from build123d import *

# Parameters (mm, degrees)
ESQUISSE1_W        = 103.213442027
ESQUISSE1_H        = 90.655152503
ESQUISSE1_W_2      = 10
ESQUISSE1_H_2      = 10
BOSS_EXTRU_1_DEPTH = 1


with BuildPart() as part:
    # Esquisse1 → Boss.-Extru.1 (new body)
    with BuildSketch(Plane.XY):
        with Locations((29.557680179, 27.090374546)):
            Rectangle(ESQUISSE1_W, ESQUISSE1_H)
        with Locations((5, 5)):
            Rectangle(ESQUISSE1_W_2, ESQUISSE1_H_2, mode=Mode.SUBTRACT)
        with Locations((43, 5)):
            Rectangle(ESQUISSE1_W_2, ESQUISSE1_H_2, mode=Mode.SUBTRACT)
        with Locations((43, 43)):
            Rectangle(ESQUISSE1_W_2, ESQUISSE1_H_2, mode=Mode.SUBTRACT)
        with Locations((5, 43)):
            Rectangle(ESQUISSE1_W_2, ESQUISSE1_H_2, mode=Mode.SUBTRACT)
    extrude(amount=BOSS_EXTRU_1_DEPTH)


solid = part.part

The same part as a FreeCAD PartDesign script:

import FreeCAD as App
import Part
import Sketcher
from FreeCAD import Vector


def add_polygon(sketch, points):
    """Adds a closed chain of lines whose ends are joined by coincident constraints."""
    first, n = sketch.GeometryCount, len(points)
    for a, b in zip(points, points[1:] + points[:1]):
        sketch.addGeometry(Part.LineSegment(App.Vector(*a, 0), App.Vector(*b, 0)), False)
    for i in range(n):
        sketch.addConstraint(Sketcher.Constraint("Coincident", first + i, 2, first + (i + 1) % n, 1))

doc = App.newDocument("Part")
params = doc.addObject("Spreadsheet::Sheet", "Params")
for row, (alias, value) in enumerate([
    ("sketch1_width", "10 mm"),
    ("pad1_length", "1 mm"),
], start=1):
    params.set(f"A{row}", alias)
    params.set(f"B{row}", "=" + value)
    params.setAlias(f"B{row}", alias)

body = doc.addObject("PartDesign::Body", "Body")

# Sketch on XY plane
sketch1 = doc.addObject("Sketcher::SketchObject", "Sketch")
body.addObject(sketch1)
sketch1.AttachmentSupport = (doc.XY_Plane, [""])
sketch1.MapMode = "FlatFace"
add_polygon(sketch1, [(-22.049041, 72.417951), (-22.049041, -18.237202), (81.164401, -18.237202), (81.164401, 72.417951)])  # lines 0-3
add_polygon(sketch1, [(10, 0), (0, 0), (0, 10), (10, 10)])  # lines 4-7
add_polygon(sketch1, [(48, 0), (38, 0), (38, 10), (48, 10)])  # lines 8-11
add_polygon(sketch1, [(10, 38), (0, 38), (0, 48), (10, 48)])  # lines 12-15
add_polygon(sketch1, [(48, 38), (38, 38), (38, 48), (48, 48)])  # lines 16-19
sketch1.addConstraint([
    Sketcher.Constraint("Vertical", 0),
    Sketcher.Constraint("Horizontal", 1),
    Sketcher.Constraint("Vertical", 2),
    Sketcher.Constraint("Horizontal", 3),
    Sketcher.Constraint("Horizontal", 4),
    Sketcher.Constraint("Vertical", 5),
    Sketcher.Constraint("Horizontal", 6),
    Sketcher.Constraint("Vertical", 7),
    Sketcher.Constraint("Horizontal", 8),
    Sketcher.Constraint("Vertical", 9),
    Sketcher.Constraint("Horizontal", 10),
    Sketcher.Constraint("Vertical", 11),
    Sketcher.Constraint("Horizontal", 12),
    Sketcher.Constraint("Vertical", 13),
    Sketcher.Constraint("Horizontal", 14),
    Sketcher.Constraint("Vertical", 15),
    Sketcher.Constraint("Horizontal", 16),
    Sketcher.Constraint("Vertical", 17),
    Sketcher.Constraint("Horizontal", 18),
    Sketcher.Constraint("Vertical", 19),
    Sketcher.Constraint("Coincident", 4, 2, -1, 1),
    Sketcher.Constraint("PointOnObject", 8, 2, -1),
    Sketcher.Constraint("PointOnObject", 12, 2, -2),
    Sketcher.Constraint("Horizontal", 6, 2, 9, 2),
    Sketcher.Constraint("Horizontal", 15, 2, 16, 2),
    Sketcher.Constraint("Horizontal", 14, 2, 17, 2),
    Sketcher.Constraint("Vertical", 7, 2, 14, 2),
    Sketcher.Constraint("Vertical", 9, 2, 16, 2),
    Sketcher.Constraint("Vertical", 11, 2, 18, 2),
    Sketcher.Constraint("Equal", 6, 8),
    Sketcher.Constraint("Equal", 18, 5),
    Sketcher.Constraint("Equal", 11, 13),
    Sketcher.Constraint("DistanceX", 4, 2, 4, 1, 10.0),
    Sketcher.Constraint("DistanceX", -1, 1, 8, 2, 38.0),
    Sketcher.Constraint("DistanceY", -1, 1, 12, 2, 38.0),
    Sketcher.Constraint("DistanceY", 0, 2, -1, 1, 18.237202),
    Sketcher.Constraint("DistanceX", -1, 1, 1, 2, 81.164401),
    Sketcher.Constraint("DistanceX", 1, 1, 1, 2, 103.213442),
    Sketcher.Constraint("DistanceY", 0, 2, 0, 1, 90.655153),
])
sketch1.setExpression("Constraints[52]", "Params.sketch1_width")
pad1 = doc.addObject("PartDesign::Pad", "Pad")
body.addObject(pad1)
pad1.Profile = sketch1
pad1.setExpression("Length", "Params.pad1_length")

doc.recompute()
